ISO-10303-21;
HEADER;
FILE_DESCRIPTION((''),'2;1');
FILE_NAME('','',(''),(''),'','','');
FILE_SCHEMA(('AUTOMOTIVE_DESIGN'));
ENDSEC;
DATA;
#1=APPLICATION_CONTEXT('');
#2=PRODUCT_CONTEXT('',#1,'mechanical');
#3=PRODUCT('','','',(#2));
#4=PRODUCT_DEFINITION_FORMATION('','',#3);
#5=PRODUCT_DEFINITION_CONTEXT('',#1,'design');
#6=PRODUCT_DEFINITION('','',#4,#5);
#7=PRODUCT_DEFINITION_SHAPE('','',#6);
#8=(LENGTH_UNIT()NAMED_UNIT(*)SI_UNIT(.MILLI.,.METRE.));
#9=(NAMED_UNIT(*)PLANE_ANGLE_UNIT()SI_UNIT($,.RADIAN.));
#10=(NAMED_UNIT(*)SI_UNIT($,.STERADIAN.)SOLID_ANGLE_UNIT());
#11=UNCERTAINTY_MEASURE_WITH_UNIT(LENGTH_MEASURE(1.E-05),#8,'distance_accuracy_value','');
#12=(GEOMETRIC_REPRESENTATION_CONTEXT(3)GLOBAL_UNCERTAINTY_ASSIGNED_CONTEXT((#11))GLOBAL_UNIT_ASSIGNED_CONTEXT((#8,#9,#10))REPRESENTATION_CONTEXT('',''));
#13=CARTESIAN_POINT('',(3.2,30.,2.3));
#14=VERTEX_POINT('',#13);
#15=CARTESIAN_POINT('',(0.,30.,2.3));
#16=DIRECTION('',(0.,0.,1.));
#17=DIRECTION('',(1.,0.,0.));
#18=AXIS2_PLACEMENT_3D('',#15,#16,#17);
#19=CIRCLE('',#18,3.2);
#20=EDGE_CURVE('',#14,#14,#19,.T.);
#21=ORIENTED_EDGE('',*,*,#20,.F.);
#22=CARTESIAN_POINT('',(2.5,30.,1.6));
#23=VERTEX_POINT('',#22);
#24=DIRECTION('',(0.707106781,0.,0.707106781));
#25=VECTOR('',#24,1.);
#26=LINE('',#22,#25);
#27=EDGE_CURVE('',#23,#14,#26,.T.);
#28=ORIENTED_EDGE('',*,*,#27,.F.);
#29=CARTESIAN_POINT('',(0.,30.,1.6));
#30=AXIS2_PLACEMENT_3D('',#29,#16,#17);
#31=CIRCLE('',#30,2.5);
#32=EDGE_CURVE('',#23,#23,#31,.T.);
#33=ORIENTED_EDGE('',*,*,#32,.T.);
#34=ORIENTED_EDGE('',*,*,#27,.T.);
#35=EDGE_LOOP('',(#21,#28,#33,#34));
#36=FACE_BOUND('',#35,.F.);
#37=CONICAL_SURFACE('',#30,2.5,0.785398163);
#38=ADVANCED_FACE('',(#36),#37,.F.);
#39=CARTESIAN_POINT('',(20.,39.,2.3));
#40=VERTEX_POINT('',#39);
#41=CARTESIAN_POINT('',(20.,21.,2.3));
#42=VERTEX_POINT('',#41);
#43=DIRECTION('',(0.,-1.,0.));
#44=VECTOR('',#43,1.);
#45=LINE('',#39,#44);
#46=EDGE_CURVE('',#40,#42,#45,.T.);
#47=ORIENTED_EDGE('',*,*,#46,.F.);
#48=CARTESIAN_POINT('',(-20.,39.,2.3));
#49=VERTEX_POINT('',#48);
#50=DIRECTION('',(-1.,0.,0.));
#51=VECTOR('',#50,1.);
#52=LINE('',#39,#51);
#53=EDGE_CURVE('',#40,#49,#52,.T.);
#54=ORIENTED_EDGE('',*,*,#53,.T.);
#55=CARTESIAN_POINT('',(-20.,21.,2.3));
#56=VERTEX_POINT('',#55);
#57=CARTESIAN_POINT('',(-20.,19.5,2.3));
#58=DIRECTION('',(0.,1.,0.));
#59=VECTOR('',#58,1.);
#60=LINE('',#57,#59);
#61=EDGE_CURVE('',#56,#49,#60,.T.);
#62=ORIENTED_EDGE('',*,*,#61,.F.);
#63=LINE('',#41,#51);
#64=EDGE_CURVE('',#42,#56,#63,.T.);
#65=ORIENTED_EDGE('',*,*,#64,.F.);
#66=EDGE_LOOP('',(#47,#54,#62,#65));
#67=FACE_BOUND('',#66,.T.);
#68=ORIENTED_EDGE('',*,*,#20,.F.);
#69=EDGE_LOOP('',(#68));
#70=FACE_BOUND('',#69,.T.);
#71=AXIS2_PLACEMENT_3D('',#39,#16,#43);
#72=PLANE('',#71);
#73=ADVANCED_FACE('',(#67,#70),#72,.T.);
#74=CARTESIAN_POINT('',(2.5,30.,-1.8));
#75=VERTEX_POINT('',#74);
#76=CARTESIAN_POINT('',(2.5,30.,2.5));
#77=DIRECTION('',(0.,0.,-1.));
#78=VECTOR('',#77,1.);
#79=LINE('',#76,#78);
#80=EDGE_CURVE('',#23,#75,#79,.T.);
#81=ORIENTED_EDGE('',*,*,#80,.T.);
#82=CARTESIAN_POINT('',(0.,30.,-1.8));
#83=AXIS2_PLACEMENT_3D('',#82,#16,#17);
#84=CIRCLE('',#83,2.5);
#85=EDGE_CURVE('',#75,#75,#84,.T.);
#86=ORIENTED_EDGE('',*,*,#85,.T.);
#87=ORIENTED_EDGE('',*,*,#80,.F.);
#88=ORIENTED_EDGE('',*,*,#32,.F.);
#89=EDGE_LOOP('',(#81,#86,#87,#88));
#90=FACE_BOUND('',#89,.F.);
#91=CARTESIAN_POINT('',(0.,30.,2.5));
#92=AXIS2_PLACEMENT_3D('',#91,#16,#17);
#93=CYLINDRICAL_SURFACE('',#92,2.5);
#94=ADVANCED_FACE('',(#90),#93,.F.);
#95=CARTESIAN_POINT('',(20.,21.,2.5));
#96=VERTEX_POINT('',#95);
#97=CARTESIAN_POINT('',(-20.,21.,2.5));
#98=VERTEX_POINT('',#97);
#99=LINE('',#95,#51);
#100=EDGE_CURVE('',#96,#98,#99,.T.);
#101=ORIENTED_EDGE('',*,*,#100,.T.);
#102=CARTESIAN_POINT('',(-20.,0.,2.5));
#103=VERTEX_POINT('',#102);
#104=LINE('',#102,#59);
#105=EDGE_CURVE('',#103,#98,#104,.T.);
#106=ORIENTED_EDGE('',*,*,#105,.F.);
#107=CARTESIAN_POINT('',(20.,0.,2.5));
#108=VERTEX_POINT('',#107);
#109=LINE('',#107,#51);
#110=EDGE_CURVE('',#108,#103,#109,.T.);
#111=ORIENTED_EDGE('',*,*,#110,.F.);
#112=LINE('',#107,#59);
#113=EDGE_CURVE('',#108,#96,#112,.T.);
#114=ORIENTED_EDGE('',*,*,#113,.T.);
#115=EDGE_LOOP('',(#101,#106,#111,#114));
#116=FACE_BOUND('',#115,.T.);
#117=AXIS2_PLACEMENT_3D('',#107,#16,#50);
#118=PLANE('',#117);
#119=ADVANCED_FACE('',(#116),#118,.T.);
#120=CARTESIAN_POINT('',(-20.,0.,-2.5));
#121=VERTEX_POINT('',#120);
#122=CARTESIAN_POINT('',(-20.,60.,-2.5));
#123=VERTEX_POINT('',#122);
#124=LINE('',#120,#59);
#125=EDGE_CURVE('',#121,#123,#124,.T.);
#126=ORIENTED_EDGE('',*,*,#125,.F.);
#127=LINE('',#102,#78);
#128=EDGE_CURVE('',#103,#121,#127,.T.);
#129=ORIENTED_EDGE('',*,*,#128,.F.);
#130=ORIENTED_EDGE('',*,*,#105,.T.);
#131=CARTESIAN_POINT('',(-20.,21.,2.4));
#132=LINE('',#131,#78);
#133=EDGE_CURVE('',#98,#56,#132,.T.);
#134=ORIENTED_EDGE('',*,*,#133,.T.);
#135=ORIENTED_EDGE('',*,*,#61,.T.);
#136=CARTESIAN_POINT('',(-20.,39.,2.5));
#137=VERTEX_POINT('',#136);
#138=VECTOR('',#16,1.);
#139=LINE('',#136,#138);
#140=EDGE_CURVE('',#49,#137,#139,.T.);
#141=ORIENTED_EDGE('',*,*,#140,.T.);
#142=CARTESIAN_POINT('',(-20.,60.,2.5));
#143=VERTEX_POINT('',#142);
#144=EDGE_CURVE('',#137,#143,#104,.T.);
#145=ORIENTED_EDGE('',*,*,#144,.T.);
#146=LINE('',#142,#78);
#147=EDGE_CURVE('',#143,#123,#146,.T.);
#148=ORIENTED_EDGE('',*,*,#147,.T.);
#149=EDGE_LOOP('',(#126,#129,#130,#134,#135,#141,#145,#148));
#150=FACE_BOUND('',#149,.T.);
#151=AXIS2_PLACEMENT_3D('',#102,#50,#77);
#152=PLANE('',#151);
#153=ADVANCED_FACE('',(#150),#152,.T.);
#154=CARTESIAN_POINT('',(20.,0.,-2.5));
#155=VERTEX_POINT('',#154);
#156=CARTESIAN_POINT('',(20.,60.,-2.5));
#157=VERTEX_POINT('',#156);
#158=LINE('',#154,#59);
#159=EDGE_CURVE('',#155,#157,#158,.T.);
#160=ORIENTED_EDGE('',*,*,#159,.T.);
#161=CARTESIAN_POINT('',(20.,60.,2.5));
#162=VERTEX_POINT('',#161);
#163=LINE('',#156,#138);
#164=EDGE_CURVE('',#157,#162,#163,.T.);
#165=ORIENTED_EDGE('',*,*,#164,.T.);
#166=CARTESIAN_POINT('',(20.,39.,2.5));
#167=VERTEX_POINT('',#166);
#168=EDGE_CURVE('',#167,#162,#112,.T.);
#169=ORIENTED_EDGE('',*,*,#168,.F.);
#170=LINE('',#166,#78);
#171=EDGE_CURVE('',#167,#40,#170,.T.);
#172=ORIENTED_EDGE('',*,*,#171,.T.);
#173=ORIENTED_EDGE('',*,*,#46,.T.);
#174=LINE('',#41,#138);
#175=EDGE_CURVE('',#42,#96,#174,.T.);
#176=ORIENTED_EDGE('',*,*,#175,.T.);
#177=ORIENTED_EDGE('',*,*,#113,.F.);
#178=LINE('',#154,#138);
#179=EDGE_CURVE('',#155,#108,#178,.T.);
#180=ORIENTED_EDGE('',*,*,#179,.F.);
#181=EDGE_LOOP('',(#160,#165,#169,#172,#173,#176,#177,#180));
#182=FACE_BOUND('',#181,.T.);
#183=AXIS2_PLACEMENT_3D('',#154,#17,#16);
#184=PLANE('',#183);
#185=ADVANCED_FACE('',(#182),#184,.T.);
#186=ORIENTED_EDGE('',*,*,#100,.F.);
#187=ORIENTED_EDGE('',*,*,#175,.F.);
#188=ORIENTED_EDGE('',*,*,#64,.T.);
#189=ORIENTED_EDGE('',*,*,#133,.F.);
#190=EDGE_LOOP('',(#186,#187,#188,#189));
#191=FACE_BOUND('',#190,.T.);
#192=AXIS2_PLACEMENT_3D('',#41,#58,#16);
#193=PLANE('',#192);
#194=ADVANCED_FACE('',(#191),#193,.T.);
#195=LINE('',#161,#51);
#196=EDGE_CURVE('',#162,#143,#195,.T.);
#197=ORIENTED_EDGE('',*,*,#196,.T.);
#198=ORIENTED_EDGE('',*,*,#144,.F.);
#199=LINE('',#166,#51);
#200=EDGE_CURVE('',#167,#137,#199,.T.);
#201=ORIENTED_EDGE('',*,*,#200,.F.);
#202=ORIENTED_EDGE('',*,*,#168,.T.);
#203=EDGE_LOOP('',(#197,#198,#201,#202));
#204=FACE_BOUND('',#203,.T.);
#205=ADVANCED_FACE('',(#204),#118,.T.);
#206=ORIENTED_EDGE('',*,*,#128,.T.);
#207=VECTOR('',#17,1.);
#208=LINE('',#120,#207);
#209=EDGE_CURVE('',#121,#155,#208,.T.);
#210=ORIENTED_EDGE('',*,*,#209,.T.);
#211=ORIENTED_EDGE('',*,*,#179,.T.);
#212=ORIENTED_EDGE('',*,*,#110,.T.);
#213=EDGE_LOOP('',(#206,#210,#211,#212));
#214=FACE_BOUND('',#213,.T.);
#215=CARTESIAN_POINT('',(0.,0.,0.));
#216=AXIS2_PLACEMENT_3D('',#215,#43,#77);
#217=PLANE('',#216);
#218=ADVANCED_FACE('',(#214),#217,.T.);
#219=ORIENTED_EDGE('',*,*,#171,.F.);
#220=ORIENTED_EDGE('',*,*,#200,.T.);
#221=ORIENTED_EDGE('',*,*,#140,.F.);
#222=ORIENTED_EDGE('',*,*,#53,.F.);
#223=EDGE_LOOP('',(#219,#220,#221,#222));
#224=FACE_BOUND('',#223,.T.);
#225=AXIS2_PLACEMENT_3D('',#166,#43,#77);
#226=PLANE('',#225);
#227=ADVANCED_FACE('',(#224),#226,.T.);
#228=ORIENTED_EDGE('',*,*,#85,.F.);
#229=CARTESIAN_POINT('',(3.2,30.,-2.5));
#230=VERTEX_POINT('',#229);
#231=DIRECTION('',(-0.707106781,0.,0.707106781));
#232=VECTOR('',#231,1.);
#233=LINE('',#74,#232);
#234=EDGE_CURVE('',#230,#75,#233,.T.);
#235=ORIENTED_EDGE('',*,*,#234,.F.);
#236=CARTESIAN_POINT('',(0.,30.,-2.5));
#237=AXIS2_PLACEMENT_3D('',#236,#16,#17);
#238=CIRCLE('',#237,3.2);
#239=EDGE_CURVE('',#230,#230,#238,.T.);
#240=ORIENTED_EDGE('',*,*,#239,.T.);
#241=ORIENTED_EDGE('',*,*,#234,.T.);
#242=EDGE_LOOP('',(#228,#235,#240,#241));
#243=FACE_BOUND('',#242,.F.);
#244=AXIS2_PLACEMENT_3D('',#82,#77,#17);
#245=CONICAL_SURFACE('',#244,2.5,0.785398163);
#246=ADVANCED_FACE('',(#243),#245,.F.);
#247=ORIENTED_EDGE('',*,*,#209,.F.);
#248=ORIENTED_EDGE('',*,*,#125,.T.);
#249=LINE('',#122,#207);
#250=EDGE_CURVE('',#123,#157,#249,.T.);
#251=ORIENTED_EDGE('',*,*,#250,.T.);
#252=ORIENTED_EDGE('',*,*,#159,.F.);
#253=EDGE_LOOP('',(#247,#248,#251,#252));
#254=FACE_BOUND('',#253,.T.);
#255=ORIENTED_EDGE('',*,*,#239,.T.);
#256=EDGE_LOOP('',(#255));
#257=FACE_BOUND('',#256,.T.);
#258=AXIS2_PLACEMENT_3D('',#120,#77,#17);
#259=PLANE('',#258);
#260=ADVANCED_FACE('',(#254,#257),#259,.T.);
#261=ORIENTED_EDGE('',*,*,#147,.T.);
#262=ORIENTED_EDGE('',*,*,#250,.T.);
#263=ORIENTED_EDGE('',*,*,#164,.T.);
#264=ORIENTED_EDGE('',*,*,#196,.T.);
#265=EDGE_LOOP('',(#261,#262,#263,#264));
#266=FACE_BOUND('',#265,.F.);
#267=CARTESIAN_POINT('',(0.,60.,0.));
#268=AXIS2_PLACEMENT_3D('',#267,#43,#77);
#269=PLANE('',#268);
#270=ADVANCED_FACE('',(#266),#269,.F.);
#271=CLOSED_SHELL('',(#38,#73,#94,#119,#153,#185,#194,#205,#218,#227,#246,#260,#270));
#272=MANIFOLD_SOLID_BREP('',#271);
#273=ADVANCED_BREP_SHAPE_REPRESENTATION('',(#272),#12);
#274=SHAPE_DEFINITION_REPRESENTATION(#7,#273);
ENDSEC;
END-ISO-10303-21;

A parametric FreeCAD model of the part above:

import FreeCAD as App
import Part
import Sketcher

V = App.Vector
Q = App.Units.Quantity


def edges_at(feature, points):
    """Names of the edges that pass closest to the given points."""
    edges = feature.Shape.Edges
    near = lambda p: min(range(len(edges)), key=lambda i: edges[i].distToShape(Part.Vertex(*p))[0])
    return sorted({f"Edge{near(p) + 1}" for p in points})


def add_polygon(sketch, points):
    """Adds a closed chain of lines whose ends are joined by coincident constraints."""
    first, n = sketch.GeometryCount, len(points)
    for a, b in zip(points, points[1:] + points[:1]):
        sketch.addGeometry(Part.LineSegment(App.Vector(*a, 0), App.Vector(*b, 0)), False)
    for i in range(n):
        sketch.addConstraint(Sketcher.Constraint("Coincident", first + i, 2, first + (i + 1) % n, 1))

doc = App.newDocument("Part")
body = doc.addObject("PartDesign::Body", "Body")

sketch1 = doc.addObject("Sketcher::SketchObject", "Sketch")
body.addObject(sketch1)
sketch1.AttachmentSupport = (doc.XZ_Plane, [""])
sketch1.MapMode = "FlatFace"
add_polygon(sketch1, [(-20, 2), (-20, -2), (20, -2), (20, 2)])
sketch1.addConstraint(Sketcher.Constraint("Vertical", 0))
sketch1.addConstraint(Sketcher.Constraint("Horizontal", 1))
sketch1.addConstraint(Sketcher.Constraint("Vertical", 2))
sketch1.addConstraint(Sketcher.Constraint("Horizontal", 3))
sketch1.addConstraint(Sketcher.Constraint("Symmetric", 0, 2, 2, 2, -1, 1))
sketch1.addConstraint(Sketcher.Constraint("DistanceX", 0, 2, -1, 1, Q("20 mm")))
sketch1.addConstraint(Sketcher.Constraint("DistanceY", 0, 2, 0, 1, Q("5 mm")))
pad1 = doc.addObject("PartDesign::Pad", "Pad")
body.addObject(pad1)
pad1.Profile = sketch1
pad1.Length = 60
pad1.Reversed = True

sketch2 = doc.addObject("Sketcher::SketchObject", "Sketch001")
body.addObject(sketch2)
sketch2.AttachmentSupport = (doc.YZ_Plane, [""])
sketch2.MapMode = "FlatFace"
sketch2.AttachmentOffset = App.Placement(V(0, 0, 20), App.Rotation())
add_polygon(sketch2, [(39, 2.5), (21, 2.5), (21, 2.3), (39, 2.3)])
sketch2.addConstraint(Sketcher.Constraint("Horizontal", 0))
sketch2.addConstraint(Sketcher.Constraint("Vertical", 1))
sketch2.addConstraint(Sketcher.Constraint("Horizontal", 2))
sketch2.addConstraint(Sketcher.Constraint("Vertical", 3))
sketch2.addConstraint(Sketcher.Constraint("DistanceX", 0, 2, 0, 1, Q("18 mm")))
sketch2.addConstraint(Sketcher.Constraint("DistanceY", 1, 2, 1, 1, Q("0.2 mm")))
sketch2.addConstraint(Sketcher.Constraint("DistanceX", -1, 1, 0, 2, Q("21 mm")))
sketch2.addConstraint(Sketcher.Constraint("DistanceY", -1, 1, 0, 2, Q("2.5 mm")))
pocket1 = doc.addObject("PartDesign::Pocket", "Pocket")
body.addObject(pocket1)
pocket1.Profile = sketch2
pocket1.Type = "ThroughAll"

sketch3 = doc.addObject("Sketcher::SketchObject", "Sketch002")
body.addObject(sketch3)
sketch3.AttachmentSupport = (doc.XY_Plane, [""])
sketch3.MapMode = "FlatFace"
sketch3.AttachmentOffset = App.Placement(V(0, 0, 2.5), App.Rotation())
sketch3.addGeometry(Part.Circle(V(0, 30, 0), V(0, 0, 1), 2.5), False)
sketch3.addConstraint(Sketcher.Constraint("PointOnObject", 0, 3, -2))
sketch3.addConstraint(Sketcher.Constraint("Diameter", 0, Q("5 mm")))
sketch3.addConstraint(Sketcher.Constraint("DistanceY", -1, 1, 0, 3, Q("30 mm")))
pocket2 = doc.addObject("PartDesign::Pocket", "Pocket001")
body.addObject(pocket2)
pocket2.Profile = sketch3
pocket2.Type = "ThroughAll"
doc.recompute()

chamfer = doc.addObject("PartDesign::Chamfer", "Chamfer")
body.addObject(chamfer)
chamfer.Base = (pocket2, edges_at(pocket2, [(0, 32.5, 2.3), (2.5, 30, -2.5)]))
chamfer.Size = 0.7

doc.recompute()
